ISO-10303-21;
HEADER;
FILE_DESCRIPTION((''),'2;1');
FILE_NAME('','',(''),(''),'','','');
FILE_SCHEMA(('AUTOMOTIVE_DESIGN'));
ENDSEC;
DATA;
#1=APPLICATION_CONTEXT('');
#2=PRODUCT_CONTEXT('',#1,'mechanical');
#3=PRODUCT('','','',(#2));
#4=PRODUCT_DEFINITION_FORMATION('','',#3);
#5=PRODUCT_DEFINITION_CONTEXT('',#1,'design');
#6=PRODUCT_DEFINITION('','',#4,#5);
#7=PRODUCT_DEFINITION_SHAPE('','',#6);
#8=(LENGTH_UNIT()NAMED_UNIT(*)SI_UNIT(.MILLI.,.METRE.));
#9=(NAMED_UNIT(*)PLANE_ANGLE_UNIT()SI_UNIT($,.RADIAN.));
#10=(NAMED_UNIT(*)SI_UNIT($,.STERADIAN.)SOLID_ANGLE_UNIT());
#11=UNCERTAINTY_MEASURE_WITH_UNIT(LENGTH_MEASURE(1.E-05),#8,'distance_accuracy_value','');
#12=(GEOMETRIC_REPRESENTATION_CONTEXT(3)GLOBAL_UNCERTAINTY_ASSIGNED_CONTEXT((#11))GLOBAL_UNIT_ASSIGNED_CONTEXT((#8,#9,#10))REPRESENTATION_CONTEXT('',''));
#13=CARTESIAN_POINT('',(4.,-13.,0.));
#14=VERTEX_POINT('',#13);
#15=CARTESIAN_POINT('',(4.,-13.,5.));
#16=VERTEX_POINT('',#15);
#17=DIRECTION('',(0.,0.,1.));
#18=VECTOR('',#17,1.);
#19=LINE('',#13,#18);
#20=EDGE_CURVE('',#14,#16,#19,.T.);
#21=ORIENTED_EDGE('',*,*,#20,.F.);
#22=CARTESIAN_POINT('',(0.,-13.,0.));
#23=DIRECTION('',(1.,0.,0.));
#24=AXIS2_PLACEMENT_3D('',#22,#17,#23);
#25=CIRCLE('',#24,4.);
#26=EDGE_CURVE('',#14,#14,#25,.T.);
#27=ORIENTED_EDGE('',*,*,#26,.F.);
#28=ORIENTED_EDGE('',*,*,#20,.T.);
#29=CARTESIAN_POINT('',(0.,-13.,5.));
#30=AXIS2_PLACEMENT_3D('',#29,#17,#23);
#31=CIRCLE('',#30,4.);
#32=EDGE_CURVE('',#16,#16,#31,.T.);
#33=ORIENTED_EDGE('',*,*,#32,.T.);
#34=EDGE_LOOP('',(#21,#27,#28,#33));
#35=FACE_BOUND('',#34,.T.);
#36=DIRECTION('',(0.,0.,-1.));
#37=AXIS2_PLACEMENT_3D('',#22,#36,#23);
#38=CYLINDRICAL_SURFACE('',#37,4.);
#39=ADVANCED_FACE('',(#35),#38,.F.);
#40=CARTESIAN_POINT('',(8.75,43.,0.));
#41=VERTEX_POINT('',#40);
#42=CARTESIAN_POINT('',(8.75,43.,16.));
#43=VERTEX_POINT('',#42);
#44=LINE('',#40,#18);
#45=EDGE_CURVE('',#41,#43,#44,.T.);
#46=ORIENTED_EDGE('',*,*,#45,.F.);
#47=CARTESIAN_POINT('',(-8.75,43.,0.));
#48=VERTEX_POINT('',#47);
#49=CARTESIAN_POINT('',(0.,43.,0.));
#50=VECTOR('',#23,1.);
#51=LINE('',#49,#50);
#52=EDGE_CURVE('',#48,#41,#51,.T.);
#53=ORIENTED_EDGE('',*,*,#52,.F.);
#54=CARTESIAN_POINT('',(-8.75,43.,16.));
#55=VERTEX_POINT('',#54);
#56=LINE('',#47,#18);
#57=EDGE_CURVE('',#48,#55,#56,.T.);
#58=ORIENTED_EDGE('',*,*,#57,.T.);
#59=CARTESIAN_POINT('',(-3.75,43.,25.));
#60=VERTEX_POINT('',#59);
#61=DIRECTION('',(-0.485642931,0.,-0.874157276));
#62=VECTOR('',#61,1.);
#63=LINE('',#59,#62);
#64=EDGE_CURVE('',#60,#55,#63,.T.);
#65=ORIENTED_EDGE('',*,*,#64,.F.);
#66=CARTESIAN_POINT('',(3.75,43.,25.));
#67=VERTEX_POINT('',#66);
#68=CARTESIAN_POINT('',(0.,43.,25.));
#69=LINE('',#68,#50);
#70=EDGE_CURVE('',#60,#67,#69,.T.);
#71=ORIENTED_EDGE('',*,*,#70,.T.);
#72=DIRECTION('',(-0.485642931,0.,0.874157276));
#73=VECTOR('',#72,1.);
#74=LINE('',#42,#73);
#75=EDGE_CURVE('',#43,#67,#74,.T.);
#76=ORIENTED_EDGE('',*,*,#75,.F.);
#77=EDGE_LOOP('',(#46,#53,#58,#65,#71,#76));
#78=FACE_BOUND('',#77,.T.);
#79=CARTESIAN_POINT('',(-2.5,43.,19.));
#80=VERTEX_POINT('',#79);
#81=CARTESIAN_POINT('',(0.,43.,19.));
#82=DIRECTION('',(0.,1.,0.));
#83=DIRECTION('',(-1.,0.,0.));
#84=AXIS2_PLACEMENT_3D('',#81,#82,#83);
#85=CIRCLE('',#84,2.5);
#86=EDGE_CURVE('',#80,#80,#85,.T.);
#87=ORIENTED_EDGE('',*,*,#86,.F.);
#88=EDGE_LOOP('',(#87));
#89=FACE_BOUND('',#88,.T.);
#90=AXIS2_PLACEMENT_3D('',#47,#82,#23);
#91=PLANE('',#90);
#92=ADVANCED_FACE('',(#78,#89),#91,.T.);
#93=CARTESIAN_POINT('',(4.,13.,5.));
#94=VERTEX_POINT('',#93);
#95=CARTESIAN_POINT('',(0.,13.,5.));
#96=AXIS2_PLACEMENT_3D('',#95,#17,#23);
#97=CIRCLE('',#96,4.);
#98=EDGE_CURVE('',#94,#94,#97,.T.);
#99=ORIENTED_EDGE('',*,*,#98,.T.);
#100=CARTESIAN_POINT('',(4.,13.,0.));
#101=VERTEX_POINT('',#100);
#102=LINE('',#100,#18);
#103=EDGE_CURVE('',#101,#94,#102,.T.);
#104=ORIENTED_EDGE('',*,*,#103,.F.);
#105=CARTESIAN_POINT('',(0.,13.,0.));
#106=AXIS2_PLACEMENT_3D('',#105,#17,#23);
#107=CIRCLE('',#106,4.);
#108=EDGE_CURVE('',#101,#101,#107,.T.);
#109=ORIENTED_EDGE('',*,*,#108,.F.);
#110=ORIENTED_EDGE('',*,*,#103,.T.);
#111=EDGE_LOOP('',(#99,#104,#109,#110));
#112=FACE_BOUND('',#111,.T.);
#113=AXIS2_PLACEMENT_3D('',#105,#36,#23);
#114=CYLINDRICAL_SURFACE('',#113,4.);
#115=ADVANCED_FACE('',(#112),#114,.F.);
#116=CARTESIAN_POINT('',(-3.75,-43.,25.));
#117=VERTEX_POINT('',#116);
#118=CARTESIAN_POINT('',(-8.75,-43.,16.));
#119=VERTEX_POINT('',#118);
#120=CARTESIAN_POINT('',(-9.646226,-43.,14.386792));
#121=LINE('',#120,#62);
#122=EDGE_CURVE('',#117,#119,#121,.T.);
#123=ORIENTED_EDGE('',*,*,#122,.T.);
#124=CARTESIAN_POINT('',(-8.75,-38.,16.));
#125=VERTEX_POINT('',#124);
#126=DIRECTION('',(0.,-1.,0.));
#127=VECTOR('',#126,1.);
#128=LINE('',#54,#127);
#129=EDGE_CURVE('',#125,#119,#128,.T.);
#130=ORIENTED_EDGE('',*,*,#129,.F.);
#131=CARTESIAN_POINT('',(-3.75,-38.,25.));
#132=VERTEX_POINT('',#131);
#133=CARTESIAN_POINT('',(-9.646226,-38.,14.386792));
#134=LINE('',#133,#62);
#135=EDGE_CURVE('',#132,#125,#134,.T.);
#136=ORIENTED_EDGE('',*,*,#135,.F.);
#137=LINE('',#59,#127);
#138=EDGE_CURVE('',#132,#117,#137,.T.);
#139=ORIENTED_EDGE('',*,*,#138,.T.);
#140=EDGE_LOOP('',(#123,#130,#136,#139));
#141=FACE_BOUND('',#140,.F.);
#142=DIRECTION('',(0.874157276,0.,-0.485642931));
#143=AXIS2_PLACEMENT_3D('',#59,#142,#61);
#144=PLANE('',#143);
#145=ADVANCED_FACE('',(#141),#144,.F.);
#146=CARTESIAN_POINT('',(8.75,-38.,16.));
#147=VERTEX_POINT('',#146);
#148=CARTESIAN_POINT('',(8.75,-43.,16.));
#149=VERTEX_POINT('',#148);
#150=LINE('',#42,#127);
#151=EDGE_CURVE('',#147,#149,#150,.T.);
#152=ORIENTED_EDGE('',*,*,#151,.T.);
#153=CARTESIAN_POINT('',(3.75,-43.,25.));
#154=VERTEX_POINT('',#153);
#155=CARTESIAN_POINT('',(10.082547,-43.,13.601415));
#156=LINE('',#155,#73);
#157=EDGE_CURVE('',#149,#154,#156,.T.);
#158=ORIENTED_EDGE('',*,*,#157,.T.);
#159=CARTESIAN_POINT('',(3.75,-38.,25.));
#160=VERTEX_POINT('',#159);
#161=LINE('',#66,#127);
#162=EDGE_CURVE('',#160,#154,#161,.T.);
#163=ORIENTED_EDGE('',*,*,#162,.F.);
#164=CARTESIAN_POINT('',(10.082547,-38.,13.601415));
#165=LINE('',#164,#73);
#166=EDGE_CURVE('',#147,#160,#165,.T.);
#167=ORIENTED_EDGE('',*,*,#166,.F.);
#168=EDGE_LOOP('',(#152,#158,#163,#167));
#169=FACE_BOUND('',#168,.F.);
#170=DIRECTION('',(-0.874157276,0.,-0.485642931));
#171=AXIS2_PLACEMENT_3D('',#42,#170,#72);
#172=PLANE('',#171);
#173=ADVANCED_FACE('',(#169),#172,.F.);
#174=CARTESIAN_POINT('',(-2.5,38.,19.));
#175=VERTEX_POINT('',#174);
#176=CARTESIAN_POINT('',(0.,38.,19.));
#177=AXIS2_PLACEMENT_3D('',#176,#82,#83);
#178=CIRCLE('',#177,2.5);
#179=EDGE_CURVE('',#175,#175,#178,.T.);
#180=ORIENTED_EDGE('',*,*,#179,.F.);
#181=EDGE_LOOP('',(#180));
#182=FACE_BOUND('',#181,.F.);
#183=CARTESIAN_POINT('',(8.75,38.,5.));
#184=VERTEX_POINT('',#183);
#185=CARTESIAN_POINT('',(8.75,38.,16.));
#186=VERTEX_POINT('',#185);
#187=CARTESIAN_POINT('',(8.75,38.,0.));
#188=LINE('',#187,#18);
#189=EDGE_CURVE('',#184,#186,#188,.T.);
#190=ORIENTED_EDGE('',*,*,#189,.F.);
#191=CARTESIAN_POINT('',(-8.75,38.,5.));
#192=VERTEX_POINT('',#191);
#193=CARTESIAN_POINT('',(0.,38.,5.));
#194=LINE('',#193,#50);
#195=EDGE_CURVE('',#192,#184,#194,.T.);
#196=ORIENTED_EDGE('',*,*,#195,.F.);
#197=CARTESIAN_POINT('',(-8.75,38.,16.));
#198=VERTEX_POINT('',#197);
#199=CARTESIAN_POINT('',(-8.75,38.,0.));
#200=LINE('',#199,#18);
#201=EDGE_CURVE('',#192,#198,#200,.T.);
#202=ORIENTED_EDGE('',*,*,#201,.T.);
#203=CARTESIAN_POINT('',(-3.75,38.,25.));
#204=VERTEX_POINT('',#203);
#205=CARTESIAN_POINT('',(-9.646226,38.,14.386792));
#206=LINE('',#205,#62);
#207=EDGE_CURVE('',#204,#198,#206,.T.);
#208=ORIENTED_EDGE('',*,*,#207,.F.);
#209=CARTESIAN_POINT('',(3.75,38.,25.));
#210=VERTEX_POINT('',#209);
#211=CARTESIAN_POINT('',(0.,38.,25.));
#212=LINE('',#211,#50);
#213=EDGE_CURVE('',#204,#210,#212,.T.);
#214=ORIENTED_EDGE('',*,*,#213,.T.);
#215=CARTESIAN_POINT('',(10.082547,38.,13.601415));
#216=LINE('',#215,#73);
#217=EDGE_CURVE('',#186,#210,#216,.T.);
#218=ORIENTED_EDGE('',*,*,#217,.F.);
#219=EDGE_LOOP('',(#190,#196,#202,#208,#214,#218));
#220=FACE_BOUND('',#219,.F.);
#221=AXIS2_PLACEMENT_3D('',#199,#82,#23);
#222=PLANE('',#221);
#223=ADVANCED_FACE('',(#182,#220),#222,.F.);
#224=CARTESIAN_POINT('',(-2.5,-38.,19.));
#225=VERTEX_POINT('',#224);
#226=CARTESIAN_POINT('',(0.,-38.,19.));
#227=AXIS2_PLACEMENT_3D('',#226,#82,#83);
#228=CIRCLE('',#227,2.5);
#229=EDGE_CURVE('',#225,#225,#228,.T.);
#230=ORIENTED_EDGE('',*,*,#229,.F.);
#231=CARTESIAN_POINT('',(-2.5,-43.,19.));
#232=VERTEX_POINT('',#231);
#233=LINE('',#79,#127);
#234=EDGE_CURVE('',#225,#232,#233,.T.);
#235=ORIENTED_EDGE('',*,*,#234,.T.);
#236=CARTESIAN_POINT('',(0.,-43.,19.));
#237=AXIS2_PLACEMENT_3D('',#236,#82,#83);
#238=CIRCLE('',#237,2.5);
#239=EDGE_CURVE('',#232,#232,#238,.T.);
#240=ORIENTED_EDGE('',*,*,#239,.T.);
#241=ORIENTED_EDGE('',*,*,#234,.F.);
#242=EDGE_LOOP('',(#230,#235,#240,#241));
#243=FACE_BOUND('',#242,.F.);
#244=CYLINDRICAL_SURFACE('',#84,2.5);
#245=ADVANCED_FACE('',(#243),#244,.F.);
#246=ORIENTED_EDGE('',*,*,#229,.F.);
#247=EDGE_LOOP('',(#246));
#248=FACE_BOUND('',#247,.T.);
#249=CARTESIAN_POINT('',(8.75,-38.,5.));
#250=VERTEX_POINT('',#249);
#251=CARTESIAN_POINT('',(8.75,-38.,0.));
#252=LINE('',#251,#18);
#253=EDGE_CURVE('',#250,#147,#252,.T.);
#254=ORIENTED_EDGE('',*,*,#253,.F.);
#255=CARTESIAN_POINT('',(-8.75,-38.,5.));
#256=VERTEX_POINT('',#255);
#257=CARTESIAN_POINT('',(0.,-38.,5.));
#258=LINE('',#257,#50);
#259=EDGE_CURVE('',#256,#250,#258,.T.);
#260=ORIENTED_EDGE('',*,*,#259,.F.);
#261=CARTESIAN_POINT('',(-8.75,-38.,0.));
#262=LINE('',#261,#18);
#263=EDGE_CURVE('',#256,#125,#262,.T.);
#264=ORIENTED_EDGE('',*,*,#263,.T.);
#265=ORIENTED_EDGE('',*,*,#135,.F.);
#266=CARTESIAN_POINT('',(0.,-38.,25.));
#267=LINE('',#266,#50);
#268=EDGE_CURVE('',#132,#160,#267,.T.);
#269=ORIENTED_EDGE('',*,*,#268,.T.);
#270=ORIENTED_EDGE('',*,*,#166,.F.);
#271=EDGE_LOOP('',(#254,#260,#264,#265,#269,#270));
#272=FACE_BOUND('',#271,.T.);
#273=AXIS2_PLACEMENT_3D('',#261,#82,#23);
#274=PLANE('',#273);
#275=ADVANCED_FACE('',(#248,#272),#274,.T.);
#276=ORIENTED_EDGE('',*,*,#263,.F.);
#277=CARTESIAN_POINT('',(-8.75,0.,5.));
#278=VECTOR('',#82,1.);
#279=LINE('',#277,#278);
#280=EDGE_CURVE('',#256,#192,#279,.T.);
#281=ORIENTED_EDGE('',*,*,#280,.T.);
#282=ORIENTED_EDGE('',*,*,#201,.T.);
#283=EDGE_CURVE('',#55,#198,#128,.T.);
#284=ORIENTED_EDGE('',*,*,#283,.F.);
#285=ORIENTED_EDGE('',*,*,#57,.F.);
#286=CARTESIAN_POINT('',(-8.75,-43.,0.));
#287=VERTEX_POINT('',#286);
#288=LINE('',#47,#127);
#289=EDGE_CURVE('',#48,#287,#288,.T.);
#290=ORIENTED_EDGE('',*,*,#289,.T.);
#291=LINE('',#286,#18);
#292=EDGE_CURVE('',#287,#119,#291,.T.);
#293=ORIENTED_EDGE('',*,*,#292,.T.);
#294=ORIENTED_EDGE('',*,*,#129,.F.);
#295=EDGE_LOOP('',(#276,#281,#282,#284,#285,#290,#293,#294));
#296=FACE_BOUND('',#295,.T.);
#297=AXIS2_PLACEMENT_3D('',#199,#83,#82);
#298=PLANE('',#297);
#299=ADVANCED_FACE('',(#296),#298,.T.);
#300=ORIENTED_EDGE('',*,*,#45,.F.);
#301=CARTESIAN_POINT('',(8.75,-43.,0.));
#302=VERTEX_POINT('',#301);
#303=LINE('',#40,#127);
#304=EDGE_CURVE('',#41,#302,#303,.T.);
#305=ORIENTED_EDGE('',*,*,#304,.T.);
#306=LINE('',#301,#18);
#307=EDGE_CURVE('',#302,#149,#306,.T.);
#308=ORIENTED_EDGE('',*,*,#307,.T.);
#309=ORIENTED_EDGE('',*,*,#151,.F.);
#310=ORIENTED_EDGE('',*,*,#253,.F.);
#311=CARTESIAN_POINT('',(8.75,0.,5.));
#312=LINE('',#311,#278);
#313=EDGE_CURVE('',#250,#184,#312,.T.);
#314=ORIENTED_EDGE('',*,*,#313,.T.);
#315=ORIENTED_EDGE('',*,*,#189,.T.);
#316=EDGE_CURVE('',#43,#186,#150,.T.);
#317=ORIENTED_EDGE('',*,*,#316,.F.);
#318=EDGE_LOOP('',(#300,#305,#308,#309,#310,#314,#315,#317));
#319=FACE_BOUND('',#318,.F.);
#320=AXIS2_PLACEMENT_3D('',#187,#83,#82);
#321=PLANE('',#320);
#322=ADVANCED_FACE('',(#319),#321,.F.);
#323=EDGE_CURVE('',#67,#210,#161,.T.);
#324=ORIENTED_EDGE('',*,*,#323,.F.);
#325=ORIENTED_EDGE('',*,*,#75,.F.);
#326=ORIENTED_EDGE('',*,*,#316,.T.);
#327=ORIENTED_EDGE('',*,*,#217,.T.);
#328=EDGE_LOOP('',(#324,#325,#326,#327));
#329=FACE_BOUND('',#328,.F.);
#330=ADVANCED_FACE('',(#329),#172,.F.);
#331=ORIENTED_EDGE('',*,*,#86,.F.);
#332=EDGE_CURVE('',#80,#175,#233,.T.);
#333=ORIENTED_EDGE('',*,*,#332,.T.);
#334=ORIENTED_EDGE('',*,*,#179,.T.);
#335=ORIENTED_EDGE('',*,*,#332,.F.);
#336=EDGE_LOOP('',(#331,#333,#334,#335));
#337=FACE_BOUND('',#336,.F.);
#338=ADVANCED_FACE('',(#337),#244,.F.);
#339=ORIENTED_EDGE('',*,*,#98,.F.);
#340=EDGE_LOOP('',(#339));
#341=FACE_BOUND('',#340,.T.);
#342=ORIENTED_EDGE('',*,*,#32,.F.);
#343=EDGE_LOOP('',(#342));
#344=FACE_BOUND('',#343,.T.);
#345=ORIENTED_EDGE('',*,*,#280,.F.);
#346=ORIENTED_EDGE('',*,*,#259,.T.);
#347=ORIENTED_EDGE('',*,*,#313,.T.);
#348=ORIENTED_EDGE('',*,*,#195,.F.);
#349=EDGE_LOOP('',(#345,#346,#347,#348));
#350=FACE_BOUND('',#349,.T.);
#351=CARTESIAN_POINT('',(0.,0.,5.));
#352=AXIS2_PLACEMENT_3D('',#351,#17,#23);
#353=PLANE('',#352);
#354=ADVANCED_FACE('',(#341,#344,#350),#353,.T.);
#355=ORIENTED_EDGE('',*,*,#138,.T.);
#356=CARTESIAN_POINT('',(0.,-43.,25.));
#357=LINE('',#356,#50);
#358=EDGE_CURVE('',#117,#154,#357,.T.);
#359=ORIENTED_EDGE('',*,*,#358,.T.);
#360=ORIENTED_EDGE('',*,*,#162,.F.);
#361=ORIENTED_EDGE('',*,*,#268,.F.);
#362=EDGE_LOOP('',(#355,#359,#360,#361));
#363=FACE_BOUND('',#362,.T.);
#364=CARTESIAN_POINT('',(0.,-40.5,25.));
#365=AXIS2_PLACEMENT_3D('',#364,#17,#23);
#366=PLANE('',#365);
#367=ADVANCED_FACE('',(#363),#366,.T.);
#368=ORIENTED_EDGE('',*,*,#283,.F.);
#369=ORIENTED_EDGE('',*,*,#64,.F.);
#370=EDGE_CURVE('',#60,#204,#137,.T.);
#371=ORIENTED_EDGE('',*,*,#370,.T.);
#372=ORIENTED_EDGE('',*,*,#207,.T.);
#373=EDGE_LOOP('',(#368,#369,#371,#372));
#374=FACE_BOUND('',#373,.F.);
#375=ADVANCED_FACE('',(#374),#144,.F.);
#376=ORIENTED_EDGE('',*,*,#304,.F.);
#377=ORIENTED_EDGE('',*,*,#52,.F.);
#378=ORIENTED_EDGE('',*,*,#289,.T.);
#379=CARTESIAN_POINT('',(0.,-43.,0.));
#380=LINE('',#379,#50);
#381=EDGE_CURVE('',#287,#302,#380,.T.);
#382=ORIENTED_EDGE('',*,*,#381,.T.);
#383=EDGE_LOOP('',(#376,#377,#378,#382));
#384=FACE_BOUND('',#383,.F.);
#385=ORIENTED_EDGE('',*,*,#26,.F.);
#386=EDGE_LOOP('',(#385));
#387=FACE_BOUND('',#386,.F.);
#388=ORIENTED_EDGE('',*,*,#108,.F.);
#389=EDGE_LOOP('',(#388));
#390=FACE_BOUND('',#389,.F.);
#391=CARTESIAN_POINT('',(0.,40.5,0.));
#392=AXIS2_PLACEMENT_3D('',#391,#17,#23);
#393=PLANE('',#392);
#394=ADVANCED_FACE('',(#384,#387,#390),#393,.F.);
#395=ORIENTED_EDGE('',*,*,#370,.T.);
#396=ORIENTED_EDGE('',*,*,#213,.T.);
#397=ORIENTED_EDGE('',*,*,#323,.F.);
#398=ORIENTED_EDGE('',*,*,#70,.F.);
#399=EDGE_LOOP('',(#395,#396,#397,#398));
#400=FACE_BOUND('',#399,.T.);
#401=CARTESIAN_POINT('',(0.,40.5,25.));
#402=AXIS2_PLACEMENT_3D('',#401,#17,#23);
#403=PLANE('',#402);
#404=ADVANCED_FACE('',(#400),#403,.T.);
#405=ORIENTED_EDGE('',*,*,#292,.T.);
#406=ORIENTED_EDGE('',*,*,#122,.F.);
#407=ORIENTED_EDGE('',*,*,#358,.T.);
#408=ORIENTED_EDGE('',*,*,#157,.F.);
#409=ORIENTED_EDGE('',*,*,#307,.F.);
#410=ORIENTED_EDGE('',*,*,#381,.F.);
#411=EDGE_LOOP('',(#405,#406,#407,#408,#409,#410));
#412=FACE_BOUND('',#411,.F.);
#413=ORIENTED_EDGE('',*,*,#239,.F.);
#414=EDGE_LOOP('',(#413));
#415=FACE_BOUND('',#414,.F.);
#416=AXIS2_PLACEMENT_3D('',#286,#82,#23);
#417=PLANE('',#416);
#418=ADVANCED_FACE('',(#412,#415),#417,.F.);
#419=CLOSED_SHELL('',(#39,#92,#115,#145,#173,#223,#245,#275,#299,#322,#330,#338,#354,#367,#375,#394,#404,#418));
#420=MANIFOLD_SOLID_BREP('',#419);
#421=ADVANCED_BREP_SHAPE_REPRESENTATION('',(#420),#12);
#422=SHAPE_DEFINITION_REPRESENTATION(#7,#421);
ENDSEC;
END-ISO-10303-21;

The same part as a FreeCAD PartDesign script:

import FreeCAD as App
import Part
import Sketcher

V = App.Vector


def add_polygon(sketch, points):
    """Adds a closed chain of lines whose ends are joined by coincident constraints."""
    first, n = sketch.GeometryCount, len(points)
    for a, b in zip(points, points[1:] + points[:1]):
        sketch.addGeometry(Part.LineSegment(App.Vector(*a, 0), App.Vector(*b, 0)), False)
    for i in range(n):
        sketch.addConstraint(Sketcher.Constraint("Coincident", first + i, 2, first + (i + 1) % n, 1))

doc = App.newDocument("Part")
body = doc.addObject("PartDesign::Body", "Body")

sketch1 = body.newObject("Sketcher::SketchObject", "Sketch")
sketch1.AttachmentSupport = (doc.getObject("XY_Plane"), [""])
sketch1.MapMode = "FlatFace"
add_polygon(sketch1, [(-8.75, 38), (-8.75, -38), (8.75, -38), (8.75, 38)])
sketch1.addGeometry(Part.Circle(V(0, -13, 0), V(0, 0, 1), 4), False)
sketch1.addGeometry(Part.Circle(V(0, 13, 0), V(0, 0, 1), 4), False)
sketch1.addConstraint([
    Sketcher.Constraint("Vertical", 0),
    Sketcher.Constraint("Horizontal", 1),
    Sketcher.Constraint("Vertical", 2),
    Sketcher.Constraint("Horizontal", 3),
    Sketcher.Constraint("Equal", 4, 5),
    Sketcher.Constraint("Symmetric", 4, 3, 5, 3, -1, 1),
    Sketcher.Constraint("Symmetric", 0, 2, 2, 2, -1, 1),
    Sketcher.Constraint("PointOnObject", 4, 3, -2),
    Sketcher.Constraint("Diameter", 4, 8.0),
    Sketcher.Constraint("DistanceY", 0, 2, 0, 1, 76.0),
    Sketcher.Constraint("DistanceX", 1, 1, 1, 2, 17.5),
    Sketcher.Constraint("DistanceY", 4, 3, -1, 1, 13.0),
])
pad1 = body.newObject("PartDesign::Pad", "Pad")
pad1.Profile = sketch1
pad1.Length = 5

sketch2 = body.newObject("Sketcher::SketchObject", "Sketch001")
sketch2.AttachmentSupport = (doc.getObject("XY_Plane"), [""])
sketch2.MapMode = "FlatFace"
add_polygon(sketch2, [(-8.75, 43), (-8.75, 38), (8.75, 38), (8.75, 43)])
add_polygon(sketch2, [(-8.75, -38), (-8.75, -43), (8.75, -43), (8.75, -38)])
sketch2.addConstraint([
    Sketcher.Constraint("Vertical", 0),
    Sketcher.Constraint("Horizontal", 1),
    Sketcher.Constraint("Vertical", 2),
    Sketcher.Constraint("Horizontal", 3),
    Sketcher.Constraint("Vertical", 4),
    Sketcher.Constraint("Horizontal", 5),
    Sketcher.Constraint("Vertical", 6),
    Sketcher.Constraint("Horizontal", 7),
    Sketcher.Constraint("Symmetric", 2, 2, 4, 2, -1, 1),
    Sketcher.Constraint("Symmetric", 0, 2, 6, 2, -1, 1),
    Sketcher.Constraint("Vertical", 3, 2, 4, 2),
    Sketcher.Constraint("DistanceY", 0, 2, 0, 1, 5.0),
    Sketcher.Constraint("DistanceX", 1, 1, 1, 2, 17.5),
    Sketcher.Constraint("DistanceY", -1, 1, 0, 2, 38.0),
])
pad2 = body.newObject("PartDesign::Pad", "Pad001")
pad2.Profile = sketch2
pad2.Length = 25

sketch3 = body.newObject("Sketcher::SketchObject", "Sketch002")
sketch3.AttachmentSupport = (doc.getObject("XZ_Plane"), [""])
sketch3.MapMode = "FlatFace"
sketch3.AttachmentOffset = App.Placement(V(0, 0, -43), App.Rotation())
add_polygon(sketch3, [(-3.75, 25), (-8.75, 16), (-8.75, 25)])
add_polygon(sketch3, [(8.75, 25), (8.75, 16), (3.75, 25)])
sketch3.addGeometry(Part.Circle(V(0, 19, 0), V(0, 0, 1), 2.5), False)
sketch3.addConstraint([
    Sketcher.Constraint("Vertical", 1),
    Sketcher.Constraint("Horizontal", 2),
    Sketcher.Constraint("Vertical", 3),
    Sketcher.Constraint("Horizontal", 5),
    Sketcher.Constraint("Symmetric", 0, 2, 3, 2, -2),
    Sketcher.Constraint("Symmetric", 2, 2, 4, 2, -2),
    Sketcher.Constraint("PointOnObject", 6, 3, -2),
    Sketcher.Constraint("Diameter", 6, 5.0),
    Sketcher.Constraint("DistanceX", 2, 1, 2, 2, 5.0),
    Sketcher.Constraint("DistanceY", 1, 1, 1, 2, 9.0),
    Sketcher.Constraint("DistanceY", -1, 1, 6, 3, 19.0),
    Sketcher.Constraint("DistanceY", -1, 1, 0, 2, 16.0),
    Sketcher.Constraint("DistanceX", 2, 2, 3, 2, 12.5),
])
pocket1 = body.newObject("PartDesign::Pocket", "Pocket")
pocket1.Profile = sketch3
pocket1.Length = 100
pocket1.Reversed = True

doc.recompute()
